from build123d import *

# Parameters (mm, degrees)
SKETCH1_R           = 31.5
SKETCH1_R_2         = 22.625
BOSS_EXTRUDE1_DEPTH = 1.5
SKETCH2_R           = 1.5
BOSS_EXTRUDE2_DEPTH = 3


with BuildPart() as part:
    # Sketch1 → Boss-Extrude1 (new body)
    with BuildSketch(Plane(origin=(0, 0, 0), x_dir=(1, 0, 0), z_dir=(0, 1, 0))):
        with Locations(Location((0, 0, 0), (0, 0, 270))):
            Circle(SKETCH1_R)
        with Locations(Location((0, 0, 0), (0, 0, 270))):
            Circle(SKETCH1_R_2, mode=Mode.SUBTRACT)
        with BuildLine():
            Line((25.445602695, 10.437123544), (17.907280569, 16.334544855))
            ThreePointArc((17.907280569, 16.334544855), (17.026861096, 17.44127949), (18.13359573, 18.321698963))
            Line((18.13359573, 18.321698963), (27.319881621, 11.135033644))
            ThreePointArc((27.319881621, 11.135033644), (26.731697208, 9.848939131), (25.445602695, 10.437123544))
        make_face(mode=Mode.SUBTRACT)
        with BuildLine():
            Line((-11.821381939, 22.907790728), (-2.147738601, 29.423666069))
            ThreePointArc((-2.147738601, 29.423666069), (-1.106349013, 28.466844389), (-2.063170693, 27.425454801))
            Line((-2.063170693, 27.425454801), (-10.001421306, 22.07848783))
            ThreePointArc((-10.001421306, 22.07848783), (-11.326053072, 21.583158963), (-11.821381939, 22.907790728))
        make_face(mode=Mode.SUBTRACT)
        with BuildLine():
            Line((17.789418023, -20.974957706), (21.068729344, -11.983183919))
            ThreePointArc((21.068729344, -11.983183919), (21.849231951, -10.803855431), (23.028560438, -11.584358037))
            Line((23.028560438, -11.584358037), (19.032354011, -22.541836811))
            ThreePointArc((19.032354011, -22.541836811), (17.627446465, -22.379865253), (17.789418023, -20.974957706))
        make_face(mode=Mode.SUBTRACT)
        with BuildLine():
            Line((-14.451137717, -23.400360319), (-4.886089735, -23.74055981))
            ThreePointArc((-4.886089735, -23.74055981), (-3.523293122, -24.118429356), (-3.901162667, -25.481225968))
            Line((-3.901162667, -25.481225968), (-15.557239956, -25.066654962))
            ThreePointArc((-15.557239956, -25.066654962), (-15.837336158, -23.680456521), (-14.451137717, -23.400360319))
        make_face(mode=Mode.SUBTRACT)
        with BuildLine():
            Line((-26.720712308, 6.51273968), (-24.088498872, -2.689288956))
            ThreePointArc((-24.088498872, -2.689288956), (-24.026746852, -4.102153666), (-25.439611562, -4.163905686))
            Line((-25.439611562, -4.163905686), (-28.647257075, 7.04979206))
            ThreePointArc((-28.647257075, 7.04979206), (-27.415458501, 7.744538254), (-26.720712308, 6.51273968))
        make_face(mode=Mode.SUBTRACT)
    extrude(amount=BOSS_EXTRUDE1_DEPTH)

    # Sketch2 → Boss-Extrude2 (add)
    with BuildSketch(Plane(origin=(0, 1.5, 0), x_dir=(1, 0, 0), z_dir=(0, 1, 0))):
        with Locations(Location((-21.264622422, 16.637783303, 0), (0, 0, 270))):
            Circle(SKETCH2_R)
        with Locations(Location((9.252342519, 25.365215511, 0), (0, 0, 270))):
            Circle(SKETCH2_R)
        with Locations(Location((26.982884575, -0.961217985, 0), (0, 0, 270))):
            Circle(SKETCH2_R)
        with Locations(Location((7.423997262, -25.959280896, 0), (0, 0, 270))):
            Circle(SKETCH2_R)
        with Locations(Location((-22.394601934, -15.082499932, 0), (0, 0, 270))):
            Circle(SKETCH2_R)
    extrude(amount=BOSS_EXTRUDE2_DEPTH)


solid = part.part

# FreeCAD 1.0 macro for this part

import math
import FreeCAD as App
import Part
import Sketcher
from FreeCAD import Vector

doc = App.newDocument("Part")
params = doc.addObject("Spreadsheet::Sheet", "Params")
for row, (alias, value) in enumerate([
    ("sketch1_diameter", "63 mm"),
    ("sketch1_radius", "1 mm"),
    ("sketch1_diameter2", "45.25 mm"),
    ("pad1_length", "1.5 mm"),
    ("sketch2_diameter", "3 mm"),
    ("pad2_length", "3 mm"),
], start=1):
    params.set(f"A{row}", alias)
    params.set(f"B{row}", "=" + value)
    params.setAlias(f"B{row}", alias)

body = doc.addObject("PartDesign::Body", "Body")

# Sketch on XZ plane
sketch1 = doc.addObject("Sketcher::SketchObject", "Sketch")
body.addObject(sketch1)
sketch1.AttachmentSupport = (doc.XZ_Plane, [""])
sketch1.MapMode = "FlatFace"
sketch1.addGeometry([
    Part.Circle(Vector(0, 0, 0), Vector(0, 0, 1), 31.5),  # 0
    Part.ArcOfCircle(Part.Circle(Vector(-10.911402, -22.493139, 0), Vector(0, 0, 1), 1), math.radians(24.497368), math.radians(204.497368)),  # 1
    Part.LineSegment(Vector(-11.821382, -22.907791, 0), Vector(-2.147739, -29.423666, 0)),  # 2
    Part.ArcOfCircle(Part.Circle(Vector(-2.105455, -28.42456, 0), Vector(0, 0, 1), 1), math.radians(-92.423415), math.radians(87.576585)),  # 3
    Part.LineSegment(Vector(-2.063171, -27.425455, 0), Vector(-10.001421, -22.078488, 0)),  # 4
    Part.ArcOfCircle(Part.Circle(Vector(-27.683985, -6.781266, 0), Vector(0, 0, 1), 1), math.radians(-164.423415), math.radians(15.576585)),  # 5
    Part.LineSegment(Vector(-26.720712, -6.51274, 0), Vector(-24.088499, 2.689289, 0)),  # 6
    Part.ArcOfCircle(Part.Circle(Vector(-24.764055, 3.426597, 0), Vector(0, 0, 1), 1), math.radians(-47.502632), math.radians(132.497368)),  # 7
    Part.LineSegment(Vector(-25.439612, 4.163906, 0), Vector(-28.647257, -7.049792, 0)),  # 8
    Part.ArcOfCircle(Part.Circle(Vector(-15.004189, 24.233508, 0), Vector(0, 0, 1), 1), math.radians(123.576585), math.radians(303.576585)),  # 9
    Part.LineSegment(Vector(-14.451138, 23.40036, 0), Vector(-4.88609, 23.74056, 0)),  # 10
    Part.ArcOfCircle(Part.Circle(Vector(-4.393626, 24.610893, 0), Vector(0, 0, 1), 1), math.radians(-119.502632), math.radians(60.497368)),  # 11
    Part.LineSegment(Vector(-3.901163, 25.481226, 0), Vector(-15.55724, 25.066655, 0)),  # 12
    Part.ArcOfCircle(Part.Circle(Vector(26.382742, -10.786079, 0), Vector(0, 0, 1), 1), math.radians(-20.423415), math.radians(159.576585)),  # 13
    Part.LineSegment(Vector(25.445603, -10.437124, 0), Vector(17.907281, -16.334545, 0)),  # 14
    Part.ArcOfCircle(Part.Circle(Vector(18.020438, -17.328122, 0), Vector(0, 0, 1), 1), math.radians(96.497369), math.radians(276.497368)),  # 15
    Part.LineSegment(Vector(18.133596, -18.321699, 0), Vector(27.319882, -11.135034, 0)),  # 16
    Part.Circle(Vector(0, 0, 0), Vector(0, 0, 1), 22.625),  # 17
    Part.ArcOfCircle(Part.Circle(Vector(18.410886, 21.758397, 0), Vector(0, 0, 1), 1), math.radians(51.576585), math.radians(231.576585)),  # 18
    Part.LineSegment(Vector(17.789418, 20.974958, 0), Vector(21.068729, 11.983184, 0)),  # 19
    Part.ArcOfCircle(Part.Circle(Vector(22.048645, 11.783771, 0), Vector(0, 0, 1), 1), math.radians(168.497368), math.radians(348.497368)),  # 20
    Part.LineSegment(Vector(23.02856, 11.584358, 0), Vector(19.032354, 22.541837, 0)),  # 21
], False)
sketch1.addConstraint([
    Sketcher.Constraint("Coincident", 1, 2, 2, 1),
    Sketcher.Constraint("Coincident", 2, 2, 3, 1),
    Sketcher.Constraint("Coincident", 3, 2, 4, 1),
    Sketcher.Constraint("Coincident", 4, 2, 1, 1),
    Sketcher.Constraint("Coincident", 5, 2, 6, 1),
    Sketcher.Constraint("Coincident", 6, 2, 7, 1),
    Sketcher.Constraint("Coincident", 7, 2, 8, 1),
    Sketcher.Constraint("Coincident", 8, 2, 5, 1),
    Sketcher.Constraint("Coincident", 9, 2, 10, 1),
    Sketcher.Constraint("Coincident", 10, 2, 11, 1),
    Sketcher.Constraint("Coincident", 11, 2, 12, 1),
    Sketcher.Constraint("Coincident", 12, 2, 9, 1),
    Sketcher.Constraint("Coincident", 13, 2, 14, 1),
    Sketcher.Constraint("Coincident", 14, 2, 15, 1),
    Sketcher.Constraint("Coincident", 15, 2, 16, 1),
    Sketcher.Constraint("Coincident", 16, 2, 13, 1),
    Sketcher.Constraint("Coincident", 18, 2, 19, 1),
    Sketcher.Constraint("Coincident", 19, 2, 20, 1),
    Sketcher.Constraint("Coincident", 20, 2, 21, 1),
    Sketcher.Constraint("Coincident", 21, 2, 18, 1),
    Sketcher.Constraint("Coincident", 0, 3, -1, 1),
    Sketcher.Constraint("Coincident", 17, 3, -1, 1),
    Sketcher.Constraint("Equal", 1, 3),
    Sketcher.Constraint("Equal", 3, 5),
    Sketcher.Constraint("Equal", 5, 7),
    Sketcher.Constraint("Equal", 7, 9),
    Sketcher.Constraint("Equal", 9, 11),
    Sketcher.Constraint("Equal", 11, 13),
    Sketcher.Constraint("Equal", 13, 15),
    Sketcher.Constraint("Equal", 15, 18),
    Sketcher.Constraint("Equal", 18, 20),
    Sketcher.Constraint("Parallel", 2, 4),
    Sketcher.Constraint("Parallel", 6, 8),
    Sketcher.Constraint("Parallel", 10, 12),
    Sketcher.Constraint("Parallel", 14, 16),
    Sketcher.Constraint("Parallel", 19, 21),
    Sketcher.Constraint("Equal", 4, 6),
    Sketcher.Constraint("Equal", 2, 8),
    Sketcher.Constraint("Equal", 6, 10),
    Sketcher.Constraint("Equal", 8, 12),
    Sketcher.Constraint("Equal", 10, 14),
    Sketcher.Constraint("Equal", 12, 16),
    Sketcher.Constraint("Equal", 14, 19),
    Sketcher.Constraint("Equal", 16, 21),
    Sketcher.Constraint("Diameter", 0, 63.0),
    Sketcher.Constraint("Radius", 1, 1.0),
    Sketcher.Constraint("Diameter", 17, 45.25),
    Sketcher.Constraint("DistanceY", 15, 3, 13, 2, 6.890998),
    Sketcher.Constraint("DistanceX", 1, 3, -1, 1, 10.911402),
    Sketcher.Constraint("DistanceX", 6, 2, -1, 1, 24.088499),
    Sketcher.Constraint("DistanceY", 15, 2, -1, 1, 18.321699),
    Sketcher.Constraint("DistanceX", 7, 3, 3, 3, 22.658601),
    Sketcher.Constraint("DistanceY", 1, 3, 5, 2, 15.9804),
    Sketcher.Constraint("DistanceX", 5, 2, 7, 2, 1.281101),
    Sketcher.Constraint("DistanceY", 7, 2, 9, 3, 20.069602),
    Sketcher.Constraint("DistanceX", 8, 2, 7, 3, 3.883202),
    Sketcher.Constraint("DistanceY", 9, 2, 10, 2, 0.340199),
    Sketcher.Constraint("DistanceX", 9, 3, 10, 2, 10.118099),
    Sketcher.Constraint("DistanceX", 14, 2, 16, 2, 9.412601),
    Sketcher.Constraint("DistanceY", 20, 2, 18, 2, 9.3906),
    Sketcher.Constraint("DistanceY", 1, 3, -1, 1, 22.493139),
    Sketcher.Constraint("DistanceY", 3, 3, -1, 1, 28.42456),
    Sketcher.Constraint("DistanceX", 9, 3, -1, 1, 15.004189),
    Sketcher.Constraint("DistanceY", 13, 3, -1, 1, 10.786079),
    Sketcher.Constraint("DistanceX", -1, 1, 15, 3, 18.020438),
    Sketcher.Constraint("DistanceY", 15, 3, -1, 1, 17.328122),
    Sketcher.Constraint("DistanceY", -1, 1, 20, 3, 11.783771),
    Sketcher.Constraint("DistanceX", 1, 2, -1, 1, 11.821382),
    Sketcher.Constraint("DistanceX", 2, 2, -1, 1, 2.147739),
    Sketcher.Constraint("DistanceX", -1, 1, 18, 2, 17.789418),
    Sketcher.Constraint("DistanceY", -1, 1, 20, 2, 11.584358),
    Sketcher.Constraint("DistanceX", 5, 3, 3, 3, 25.57853),
    Sketcher.Constraint("DistanceX", 7, 3, 11, 3, 20.370429),
    Sketcher.Constraint("DistanceY", 18, 3, 9, 3, 2.47511),
])
sketch1.setExpression("Constraints[44]", "Params.sketch1_diameter")
sketch1.setExpression("Constraints[45]", "Params.sketch1_radius")
sketch1.setExpression("Constraints[46]", "Params.sketch1_diameter2")
pad1 = doc.addObject("PartDesign::Pad", "Pad")
body.addObject(pad1)
pad1.Profile = sketch1
pad1.setExpression("Length", "Params.pad1_length")
pad1.Reversed = True

# Sketch on XZ plane
sketch2 = doc.addObject("Sketcher::SketchObject", "Sketch001")
body.addObject(sketch2)
sketch2.AttachmentSupport = (doc.XZ_Plane, [""])
sketch2.MapMode = "FlatFace"
sketch2.AttachmentOffset = App.Placement(Vector(0, 0, -1.5), App.Rotation())
sketch2.addGeometry([
    Part.Circle(Vector(-21.264622, -16.637783, 0), Vector(0, 0, 1), 1.5),  # 0
    Part.Circle(Vector(9.252343, -25.365216, 0), Vector(0, 0, 1), 1.5),  # 1
    Part.Circle(Vector(26.982885, 0.961218, 0), Vector(0, 0, 1), 1.5),  # 2
    Part.Circle(Vector(7.423997, 25.959281, 0), Vector(0, 0, 1), 1.5),  # 3
    Part.Circle(Vector(-22.394602, 15.0825, 0), Vector(0, 0, 1), 1.5),  # 4
], False)
sketch2.addConstraint([
    Sketcher.Constraint("Equal", 0, 1),
    Sketcher.Constraint("Equal", 1, 2),
    Sketcher.Constraint("Equal", 2, 3),
    Sketcher.Constraint("Equal", 3, 4),
    Sketcher.Constraint("Diameter", 0, 3.0),
    Sketcher.Constraint("DistanceY", 0, 3, 2, 3, 17.599001),
    Sketcher.Constraint("DistanceX", 4, 3, -1, 1, 22.394602),
    Sketcher.Constraint("DistanceY", -1, 1, 4, 3, 15.0825),
    Sketcher.Constraint("DistanceX", 4, 3, 3, 3, 29.818599),
    Sketcher.Constraint("DistanceY", -1, 1, 3, 3, 25.959281),
    Sketcher.Constraint("DistanceX", 0, 3, 3, 3, 28.68862),
    Sketcher.Constraint("DistanceY", 2, 3, 4, 3, 14.121282),
    Sketcher.Constraint("DistanceX", -1, 1, 1, 3, 9.252343),
    Sketcher.Constraint("DistanceY", 1, 3, -1, 1, 25.365216),
    Sketcher.Constraint("DistanceX", -1, 1, 2, 3, 26.982885),
])
sketch2.setExpression("Constraints[4]", "Params.sketch2_diameter")
pad2 = doc.addObject("PartDesign::Pad", "Pad001")
body.addObject(pad2)
pad2.Profile = sketch2
pad2.setExpression("Length", "Params.pad2_length")
pad2.Reversed = True

doc.recompute()
